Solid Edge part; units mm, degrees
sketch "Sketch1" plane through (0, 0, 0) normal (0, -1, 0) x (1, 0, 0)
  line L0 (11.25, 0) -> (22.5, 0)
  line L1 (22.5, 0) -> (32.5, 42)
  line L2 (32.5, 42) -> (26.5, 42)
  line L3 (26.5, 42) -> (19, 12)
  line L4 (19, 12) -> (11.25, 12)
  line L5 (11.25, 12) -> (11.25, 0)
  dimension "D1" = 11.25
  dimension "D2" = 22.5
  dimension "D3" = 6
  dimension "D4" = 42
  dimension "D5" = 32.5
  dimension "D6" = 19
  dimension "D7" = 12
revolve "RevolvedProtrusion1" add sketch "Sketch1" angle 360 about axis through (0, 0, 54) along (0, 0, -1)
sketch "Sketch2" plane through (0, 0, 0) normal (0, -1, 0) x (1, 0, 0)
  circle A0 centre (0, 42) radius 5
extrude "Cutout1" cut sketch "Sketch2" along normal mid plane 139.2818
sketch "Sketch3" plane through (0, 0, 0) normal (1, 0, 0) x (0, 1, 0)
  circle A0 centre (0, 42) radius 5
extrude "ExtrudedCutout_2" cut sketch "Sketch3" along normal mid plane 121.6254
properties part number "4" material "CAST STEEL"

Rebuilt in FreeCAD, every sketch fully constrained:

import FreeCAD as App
import Part
import Sketcher
from FreeCAD import Vector
Q = App.Units.Quantity

doc = App.newDocument("Part")
body = doc.addObject("PartDesign::Body", "Body")

# Sketch on XZ plane
sketch1 = body.newObject("Sketcher::SketchObject", "Sketch")
sketch1.AttachmentSupport = (doc.getObject("XZ_Plane"), [""])
sketch1.MapMode = "FlatFace"
sketch1.addGeometry([
    Part.LineSegment(Vector(11, 12, 0), Vector(11, 0, 0)),  # 0
    Part.LineSegment(Vector(11, 0, 0), Vector(22, 0, 0)),  # 1
    Part.LineSegment(Vector(22, 0, 0), Vector(32, 42, 0)),  # 2
    Part.LineSegment(Vector(32, 42, 0), Vector(26, 42, 0)),  # 3
    Part.LineSegment(Vector(26, 42, 0), Vector(19, 12, 0)),  # 4
    Part.LineSegment(Vector(19, 12, 0), Vector(11, 12, 0)),  # 5
], False)
sketch1.addConstraint([
    Sketcher.Constraint("Coincident", 0, 2, 1, 1),
    Sketcher.Constraint("Coincident", 1, 2, 2, 1),
    Sketcher.Constraint("Coincident", 2, 2, 3, 1),
    Sketcher.Constraint("Coincident", 3, 2, 4, 1),
    Sketcher.Constraint("Coincident", 4, 2, 5, 1),
    Sketcher.Constraint("Coincident", 5, 2, 0, 1),
    Sketcher.Constraint("Vertical", 0),
    Sketcher.Constraint("Horizontal", 1),
    Sketcher.Constraint("Horizontal", 3),
    Sketcher.Constraint("Horizontal", 5),
    Sketcher.Constraint("PointOnObject", 0, 2, -1),
    Sketcher.Constraint("DistanceX", 1, 1, 1, 2, Q("11.25 mm")),
    Sketcher.Constraint("DistanceX", 3, 2, 3, 1, Q("6 mm")),
    Sketcher.Constraint("DistanceY", 0, 2, 0, 1, Q("12 mm")),
    Sketcher.Constraint("DistanceX", -1, 1, 0, 2, Q("11.25 mm")),
    Sketcher.Constraint("DistanceY", -1, 1, 2, 2, Q("42 mm")),
    Sketcher.Constraint("DistanceX", -1, 1, 4, 2, Q("19 mm")),
    Sketcher.Constraint("DistanceX", 1, 2, 2, 2, Q("10 mm")),
])
revolution = body.newObject("PartDesign::Revolution", "Revolution")
revolution.Profile = sketch1
revolution.ReferenceAxis = (sketch1, ["V_Axis"])
revolution.Angle = 360

# Sketch on XZ plane
sketch2 = body.newObject("Sketcher::SketchObject", "Sketch001")
sketch2.AttachmentSupport = (doc.getObject("XZ_Plane"), [""])
sketch2.MapMode = "FlatFace"
sketch2.addGeometry(Part.Circle(Vector(0, 42, 0), Vector(0, 0, 1), 5), False)
sketch2.addConstraint([
    Sketcher.Constraint("PointOnObject", 0, 3, -2),
    Sketcher.Constraint("Diameter", 0, Q("10 mm")),
    Sketcher.Constraint("DistanceY", -1, 1, 0, 3, Q("42 mm")),
])
pocket1 = body.newObject("PartDesign::Pocket", "Pocket")
pocket1.Profile = sketch2
pocket1.Length = 139.2818
pocket1.Midplane = True

# Sketch on YZ plane
sketch3 = body.newObject("Sketcher::SketchObject", "Sketch002")
sketch3.AttachmentSupport = (doc.getObject("YZ_Plane"), [""])
sketch3.MapMode = "FlatFace"
sketch3.addGeometry(Part.Circle(Vector(0, 42, 0), Vector(0, 0, 1), 5), False)
sketch3.addConstraint([
    Sketcher.Constraint("PointOnObject", 0, 3, -2),
    Sketcher.Constraint("Diameter", 0, Q("10 mm")),
    Sketcher.Constraint("DistanceY", -1, 1, 0, 3, Q("42 mm")),
])
pocket2 = body.newObject("PartDesign::Pocket", "Pocket001")
pocket2.Profile = sketch3
pocket2.Length = 121.6254
pocket2.Midplane = True

doc.recompute()
